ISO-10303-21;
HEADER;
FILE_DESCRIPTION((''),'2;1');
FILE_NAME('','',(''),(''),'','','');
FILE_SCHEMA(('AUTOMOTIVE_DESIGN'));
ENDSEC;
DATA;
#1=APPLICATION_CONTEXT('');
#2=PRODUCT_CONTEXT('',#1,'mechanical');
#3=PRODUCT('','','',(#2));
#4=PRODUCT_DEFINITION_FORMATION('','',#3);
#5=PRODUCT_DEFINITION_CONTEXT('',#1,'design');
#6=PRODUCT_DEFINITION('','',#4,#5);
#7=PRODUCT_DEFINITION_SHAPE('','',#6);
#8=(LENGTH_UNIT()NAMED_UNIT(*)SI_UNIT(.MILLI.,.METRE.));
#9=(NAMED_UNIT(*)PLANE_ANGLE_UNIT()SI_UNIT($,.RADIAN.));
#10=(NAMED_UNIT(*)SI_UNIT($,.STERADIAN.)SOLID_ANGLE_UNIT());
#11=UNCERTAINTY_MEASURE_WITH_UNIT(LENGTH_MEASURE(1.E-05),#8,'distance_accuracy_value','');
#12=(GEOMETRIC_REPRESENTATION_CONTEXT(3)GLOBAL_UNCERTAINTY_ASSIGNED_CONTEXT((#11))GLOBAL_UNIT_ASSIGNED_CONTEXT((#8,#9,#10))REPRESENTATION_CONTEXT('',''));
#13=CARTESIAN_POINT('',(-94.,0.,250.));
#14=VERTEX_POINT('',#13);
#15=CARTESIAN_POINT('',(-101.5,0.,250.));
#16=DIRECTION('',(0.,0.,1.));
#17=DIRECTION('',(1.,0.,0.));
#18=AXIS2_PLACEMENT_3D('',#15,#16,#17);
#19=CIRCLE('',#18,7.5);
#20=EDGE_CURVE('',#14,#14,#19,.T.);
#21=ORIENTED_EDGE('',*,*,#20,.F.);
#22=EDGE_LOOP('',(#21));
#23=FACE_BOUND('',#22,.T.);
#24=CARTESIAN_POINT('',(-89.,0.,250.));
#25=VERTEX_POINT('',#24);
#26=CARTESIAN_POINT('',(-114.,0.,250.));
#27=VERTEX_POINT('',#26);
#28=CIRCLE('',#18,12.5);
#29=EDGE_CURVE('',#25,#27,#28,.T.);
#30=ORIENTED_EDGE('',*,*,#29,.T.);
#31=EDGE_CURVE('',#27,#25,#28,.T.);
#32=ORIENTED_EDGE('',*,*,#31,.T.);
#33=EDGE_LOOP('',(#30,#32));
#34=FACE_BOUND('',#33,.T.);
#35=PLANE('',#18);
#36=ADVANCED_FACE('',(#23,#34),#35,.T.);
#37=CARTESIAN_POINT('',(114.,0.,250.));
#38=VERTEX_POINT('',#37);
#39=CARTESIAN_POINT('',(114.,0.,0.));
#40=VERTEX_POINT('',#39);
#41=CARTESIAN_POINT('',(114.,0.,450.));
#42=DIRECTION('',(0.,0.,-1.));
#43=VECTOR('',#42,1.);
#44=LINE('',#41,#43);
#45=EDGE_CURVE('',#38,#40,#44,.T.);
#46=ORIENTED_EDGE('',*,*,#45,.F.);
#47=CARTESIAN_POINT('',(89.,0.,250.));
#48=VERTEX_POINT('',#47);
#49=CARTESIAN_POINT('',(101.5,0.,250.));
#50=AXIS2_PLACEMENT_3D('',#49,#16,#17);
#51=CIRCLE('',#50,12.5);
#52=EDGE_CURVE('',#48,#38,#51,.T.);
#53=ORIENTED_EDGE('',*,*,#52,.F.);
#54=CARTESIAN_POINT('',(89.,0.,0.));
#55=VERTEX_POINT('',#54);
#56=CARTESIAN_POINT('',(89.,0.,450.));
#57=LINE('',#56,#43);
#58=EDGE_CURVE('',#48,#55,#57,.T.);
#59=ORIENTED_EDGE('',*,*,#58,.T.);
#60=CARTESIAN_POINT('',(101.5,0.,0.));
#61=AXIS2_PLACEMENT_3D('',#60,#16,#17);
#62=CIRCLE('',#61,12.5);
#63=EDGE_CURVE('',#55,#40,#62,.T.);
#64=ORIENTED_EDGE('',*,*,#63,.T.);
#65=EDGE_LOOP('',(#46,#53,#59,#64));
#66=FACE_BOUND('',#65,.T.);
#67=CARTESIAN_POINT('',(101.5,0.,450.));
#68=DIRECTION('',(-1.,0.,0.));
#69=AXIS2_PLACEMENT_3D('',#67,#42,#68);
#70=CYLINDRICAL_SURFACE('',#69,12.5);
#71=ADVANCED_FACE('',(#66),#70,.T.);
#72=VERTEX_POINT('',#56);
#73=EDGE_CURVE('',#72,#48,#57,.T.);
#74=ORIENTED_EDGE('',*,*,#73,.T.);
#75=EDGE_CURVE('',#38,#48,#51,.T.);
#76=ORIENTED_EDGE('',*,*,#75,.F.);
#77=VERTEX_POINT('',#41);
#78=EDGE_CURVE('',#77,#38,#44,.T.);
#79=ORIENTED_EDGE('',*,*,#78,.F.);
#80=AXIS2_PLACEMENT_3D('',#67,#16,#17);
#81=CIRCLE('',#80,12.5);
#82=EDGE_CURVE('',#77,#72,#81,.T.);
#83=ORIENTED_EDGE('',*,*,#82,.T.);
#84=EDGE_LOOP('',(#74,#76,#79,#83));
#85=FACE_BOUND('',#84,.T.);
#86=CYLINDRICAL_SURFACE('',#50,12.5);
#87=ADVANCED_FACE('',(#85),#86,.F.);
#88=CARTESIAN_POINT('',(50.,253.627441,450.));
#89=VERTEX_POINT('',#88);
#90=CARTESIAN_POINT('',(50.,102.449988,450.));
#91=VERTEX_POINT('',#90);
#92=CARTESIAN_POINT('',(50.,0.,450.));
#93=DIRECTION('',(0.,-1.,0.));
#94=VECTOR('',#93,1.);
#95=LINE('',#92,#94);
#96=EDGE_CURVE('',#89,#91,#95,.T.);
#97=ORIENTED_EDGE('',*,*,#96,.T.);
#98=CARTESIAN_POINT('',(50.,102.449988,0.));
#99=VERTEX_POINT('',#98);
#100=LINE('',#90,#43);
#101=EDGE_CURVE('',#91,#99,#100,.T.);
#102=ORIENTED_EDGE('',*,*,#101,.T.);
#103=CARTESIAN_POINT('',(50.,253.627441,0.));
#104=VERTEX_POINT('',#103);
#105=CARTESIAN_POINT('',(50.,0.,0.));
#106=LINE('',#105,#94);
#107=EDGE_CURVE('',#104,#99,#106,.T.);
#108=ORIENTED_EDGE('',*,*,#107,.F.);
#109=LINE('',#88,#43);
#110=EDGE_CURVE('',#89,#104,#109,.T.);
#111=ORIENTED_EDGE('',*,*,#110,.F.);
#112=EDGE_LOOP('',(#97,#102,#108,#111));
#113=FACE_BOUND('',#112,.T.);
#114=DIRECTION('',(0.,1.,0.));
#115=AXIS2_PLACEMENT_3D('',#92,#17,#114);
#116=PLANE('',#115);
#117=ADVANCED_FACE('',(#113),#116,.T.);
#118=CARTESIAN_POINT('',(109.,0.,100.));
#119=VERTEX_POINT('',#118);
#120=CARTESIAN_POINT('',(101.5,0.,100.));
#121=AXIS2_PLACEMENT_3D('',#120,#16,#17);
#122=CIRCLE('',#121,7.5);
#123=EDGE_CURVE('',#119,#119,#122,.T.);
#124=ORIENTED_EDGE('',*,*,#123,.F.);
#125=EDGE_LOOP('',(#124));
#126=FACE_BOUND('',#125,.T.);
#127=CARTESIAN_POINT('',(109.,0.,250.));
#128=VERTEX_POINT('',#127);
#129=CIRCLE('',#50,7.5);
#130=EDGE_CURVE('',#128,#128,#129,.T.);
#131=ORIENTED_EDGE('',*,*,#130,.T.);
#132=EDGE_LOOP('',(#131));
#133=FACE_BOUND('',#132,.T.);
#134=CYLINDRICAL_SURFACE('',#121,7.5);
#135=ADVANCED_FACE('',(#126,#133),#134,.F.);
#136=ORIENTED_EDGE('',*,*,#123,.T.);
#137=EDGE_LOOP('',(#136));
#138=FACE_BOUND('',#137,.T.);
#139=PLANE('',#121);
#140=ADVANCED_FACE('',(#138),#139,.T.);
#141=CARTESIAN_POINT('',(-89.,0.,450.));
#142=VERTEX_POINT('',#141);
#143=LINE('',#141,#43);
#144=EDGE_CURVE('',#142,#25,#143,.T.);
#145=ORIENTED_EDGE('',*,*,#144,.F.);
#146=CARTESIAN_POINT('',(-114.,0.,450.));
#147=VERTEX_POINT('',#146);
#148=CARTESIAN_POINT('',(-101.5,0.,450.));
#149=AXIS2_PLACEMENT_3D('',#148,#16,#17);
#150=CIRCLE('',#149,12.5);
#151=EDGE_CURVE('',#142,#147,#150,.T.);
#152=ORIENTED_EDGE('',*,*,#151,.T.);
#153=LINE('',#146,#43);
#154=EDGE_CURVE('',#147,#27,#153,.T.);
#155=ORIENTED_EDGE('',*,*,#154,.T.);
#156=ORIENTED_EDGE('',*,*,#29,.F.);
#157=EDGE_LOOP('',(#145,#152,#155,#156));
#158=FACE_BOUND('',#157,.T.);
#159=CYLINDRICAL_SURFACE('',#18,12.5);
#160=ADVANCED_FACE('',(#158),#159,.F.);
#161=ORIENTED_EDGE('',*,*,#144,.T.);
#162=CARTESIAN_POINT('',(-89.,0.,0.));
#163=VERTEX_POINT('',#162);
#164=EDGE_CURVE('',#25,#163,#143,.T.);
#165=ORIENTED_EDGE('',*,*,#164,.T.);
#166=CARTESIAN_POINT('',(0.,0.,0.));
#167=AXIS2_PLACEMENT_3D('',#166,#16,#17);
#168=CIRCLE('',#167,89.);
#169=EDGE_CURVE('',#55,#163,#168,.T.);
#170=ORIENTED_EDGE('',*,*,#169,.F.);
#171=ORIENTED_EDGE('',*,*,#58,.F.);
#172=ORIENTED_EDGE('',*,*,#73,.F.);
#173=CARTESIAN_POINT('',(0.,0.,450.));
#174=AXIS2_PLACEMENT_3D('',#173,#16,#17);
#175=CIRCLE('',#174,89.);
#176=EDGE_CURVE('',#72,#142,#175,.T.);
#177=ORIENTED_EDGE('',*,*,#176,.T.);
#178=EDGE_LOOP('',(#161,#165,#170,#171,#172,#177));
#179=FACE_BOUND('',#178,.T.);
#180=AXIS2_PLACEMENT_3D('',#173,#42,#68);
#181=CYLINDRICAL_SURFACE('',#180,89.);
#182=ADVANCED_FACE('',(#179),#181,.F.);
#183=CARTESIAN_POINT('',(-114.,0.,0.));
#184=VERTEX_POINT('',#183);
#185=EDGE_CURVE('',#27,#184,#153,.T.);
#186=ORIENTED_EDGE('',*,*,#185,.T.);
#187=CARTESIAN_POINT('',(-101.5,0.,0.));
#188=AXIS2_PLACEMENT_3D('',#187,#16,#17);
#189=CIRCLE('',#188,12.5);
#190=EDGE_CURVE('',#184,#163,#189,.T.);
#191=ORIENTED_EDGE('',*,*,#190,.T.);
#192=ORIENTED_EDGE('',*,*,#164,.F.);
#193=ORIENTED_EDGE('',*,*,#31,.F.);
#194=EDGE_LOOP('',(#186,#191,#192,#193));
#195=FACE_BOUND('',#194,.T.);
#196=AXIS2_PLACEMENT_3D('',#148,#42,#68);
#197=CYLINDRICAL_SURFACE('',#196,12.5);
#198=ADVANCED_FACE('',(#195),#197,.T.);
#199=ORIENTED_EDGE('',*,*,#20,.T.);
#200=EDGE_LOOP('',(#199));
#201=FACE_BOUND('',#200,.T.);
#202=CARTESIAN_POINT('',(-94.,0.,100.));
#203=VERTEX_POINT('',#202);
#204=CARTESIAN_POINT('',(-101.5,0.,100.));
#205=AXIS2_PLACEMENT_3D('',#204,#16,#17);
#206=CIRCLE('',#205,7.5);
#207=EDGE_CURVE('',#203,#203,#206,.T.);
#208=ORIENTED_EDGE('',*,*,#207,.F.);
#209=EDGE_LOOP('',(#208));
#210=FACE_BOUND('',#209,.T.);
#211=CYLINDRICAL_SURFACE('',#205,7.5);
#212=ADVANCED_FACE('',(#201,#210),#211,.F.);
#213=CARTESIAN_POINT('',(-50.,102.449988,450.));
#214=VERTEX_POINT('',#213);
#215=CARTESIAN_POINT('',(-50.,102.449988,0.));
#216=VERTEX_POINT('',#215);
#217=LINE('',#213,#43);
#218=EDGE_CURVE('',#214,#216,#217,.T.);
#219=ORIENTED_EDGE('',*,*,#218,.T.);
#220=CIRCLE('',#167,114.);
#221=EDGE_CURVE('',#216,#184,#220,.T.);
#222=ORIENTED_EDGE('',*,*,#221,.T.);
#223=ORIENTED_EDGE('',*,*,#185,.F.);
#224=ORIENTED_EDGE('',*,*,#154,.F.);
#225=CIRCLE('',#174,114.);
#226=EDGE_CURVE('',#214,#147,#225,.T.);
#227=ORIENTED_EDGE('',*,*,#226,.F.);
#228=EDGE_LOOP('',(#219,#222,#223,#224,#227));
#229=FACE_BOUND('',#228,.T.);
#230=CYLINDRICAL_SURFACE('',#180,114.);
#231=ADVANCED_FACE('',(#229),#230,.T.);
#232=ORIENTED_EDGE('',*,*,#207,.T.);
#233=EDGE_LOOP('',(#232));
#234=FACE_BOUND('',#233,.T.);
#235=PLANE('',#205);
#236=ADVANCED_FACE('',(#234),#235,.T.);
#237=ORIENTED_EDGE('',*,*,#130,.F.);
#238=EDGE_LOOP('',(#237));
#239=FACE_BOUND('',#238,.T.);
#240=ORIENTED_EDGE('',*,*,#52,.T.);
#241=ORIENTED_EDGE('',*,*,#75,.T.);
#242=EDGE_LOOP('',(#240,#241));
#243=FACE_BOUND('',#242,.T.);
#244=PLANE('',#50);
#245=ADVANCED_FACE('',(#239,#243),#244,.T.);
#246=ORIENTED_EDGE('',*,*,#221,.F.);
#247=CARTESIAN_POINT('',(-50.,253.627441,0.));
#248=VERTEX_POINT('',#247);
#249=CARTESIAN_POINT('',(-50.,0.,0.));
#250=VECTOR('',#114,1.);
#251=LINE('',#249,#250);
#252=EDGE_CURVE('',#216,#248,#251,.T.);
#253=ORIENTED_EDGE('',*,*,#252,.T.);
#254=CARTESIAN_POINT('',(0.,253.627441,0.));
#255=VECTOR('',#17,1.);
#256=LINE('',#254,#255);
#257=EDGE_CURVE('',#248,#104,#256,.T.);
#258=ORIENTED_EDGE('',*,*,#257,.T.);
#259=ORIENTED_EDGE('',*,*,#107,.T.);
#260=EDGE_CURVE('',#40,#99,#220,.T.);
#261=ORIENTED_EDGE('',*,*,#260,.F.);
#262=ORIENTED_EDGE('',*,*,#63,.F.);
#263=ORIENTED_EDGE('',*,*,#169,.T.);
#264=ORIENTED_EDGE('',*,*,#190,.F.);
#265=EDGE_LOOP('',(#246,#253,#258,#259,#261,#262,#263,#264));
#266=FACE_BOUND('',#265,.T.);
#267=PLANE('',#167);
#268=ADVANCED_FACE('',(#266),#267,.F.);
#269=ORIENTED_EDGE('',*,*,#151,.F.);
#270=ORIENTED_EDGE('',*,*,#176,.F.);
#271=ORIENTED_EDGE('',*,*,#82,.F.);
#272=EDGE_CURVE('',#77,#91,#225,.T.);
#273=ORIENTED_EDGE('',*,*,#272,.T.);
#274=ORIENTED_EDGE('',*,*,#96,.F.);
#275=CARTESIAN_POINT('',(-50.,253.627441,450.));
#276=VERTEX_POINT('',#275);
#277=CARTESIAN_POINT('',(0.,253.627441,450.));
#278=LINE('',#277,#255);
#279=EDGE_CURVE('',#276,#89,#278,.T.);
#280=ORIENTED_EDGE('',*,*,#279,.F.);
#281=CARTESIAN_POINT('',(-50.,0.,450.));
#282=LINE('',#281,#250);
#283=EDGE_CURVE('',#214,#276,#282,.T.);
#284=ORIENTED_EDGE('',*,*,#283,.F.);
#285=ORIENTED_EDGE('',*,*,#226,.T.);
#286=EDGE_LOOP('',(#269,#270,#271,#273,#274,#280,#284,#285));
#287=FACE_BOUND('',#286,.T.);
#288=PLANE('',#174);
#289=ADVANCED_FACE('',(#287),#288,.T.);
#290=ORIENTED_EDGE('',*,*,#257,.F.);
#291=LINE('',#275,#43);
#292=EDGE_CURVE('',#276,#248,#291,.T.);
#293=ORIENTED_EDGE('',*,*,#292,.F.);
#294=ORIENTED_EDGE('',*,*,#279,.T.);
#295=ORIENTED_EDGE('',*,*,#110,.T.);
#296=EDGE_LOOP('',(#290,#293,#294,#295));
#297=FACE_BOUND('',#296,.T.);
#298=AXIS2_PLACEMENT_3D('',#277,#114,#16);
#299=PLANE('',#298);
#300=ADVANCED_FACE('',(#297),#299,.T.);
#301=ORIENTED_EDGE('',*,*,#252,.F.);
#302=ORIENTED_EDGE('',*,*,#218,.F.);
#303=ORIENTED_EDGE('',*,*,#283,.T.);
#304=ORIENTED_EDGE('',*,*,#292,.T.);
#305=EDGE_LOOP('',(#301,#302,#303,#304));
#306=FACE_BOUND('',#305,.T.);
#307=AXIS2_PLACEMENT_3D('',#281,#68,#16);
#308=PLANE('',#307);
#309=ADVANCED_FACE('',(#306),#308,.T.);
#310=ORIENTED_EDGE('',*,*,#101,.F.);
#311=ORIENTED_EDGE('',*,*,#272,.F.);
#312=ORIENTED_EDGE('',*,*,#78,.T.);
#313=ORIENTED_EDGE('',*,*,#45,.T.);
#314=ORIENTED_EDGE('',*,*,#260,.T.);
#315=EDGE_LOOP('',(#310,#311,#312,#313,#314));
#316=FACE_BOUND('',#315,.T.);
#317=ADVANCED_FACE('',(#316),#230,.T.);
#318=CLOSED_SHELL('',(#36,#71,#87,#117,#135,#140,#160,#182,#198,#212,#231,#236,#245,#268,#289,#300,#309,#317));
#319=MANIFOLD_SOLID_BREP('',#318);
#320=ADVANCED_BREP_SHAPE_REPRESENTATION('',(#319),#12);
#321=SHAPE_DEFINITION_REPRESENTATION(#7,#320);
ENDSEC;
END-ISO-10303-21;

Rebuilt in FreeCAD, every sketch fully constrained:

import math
import FreeCAD as App
import Part
import Sketcher
Q = App.Units.Quantity

doc = App.newDocument("Part")
body = doc.addObject("PartDesign::Body", "Body")

# Sketch on XY plane
sketch1 = body.newObject("Sketcher::SketchObject", "Sketch")
sketch1.AttachmentSupport = (doc.getObject("XY_Plane"), [""])
sketch1.MapMode = "FlatFace"
sketch1.addGeometry([
    Part.LineSegment(App.Vector(-50, 253.627441, 0), App.Vector(-50, 102.449988, 0)),  # 0
    Part.ArcOfCircle(Part.Circle(App.Vector(0, 0, 0), App.Vector(0, 0, 1), 114), math.radians(116.014366), math.radians(180)),  # 1
    Part.ArcOfCircle(Part.Circle(App.Vector(-101.5, 0, 0), App.Vector(0, 0, 1), 12.5), math.radians(180), math.radians(360)),  # 2
    Part.ArcOfCircle(Part.Circle(App.Vector(0, 0, 0), App.Vector(0, 0, 1), 89), math.radians(55.819784), math.radians(180)),  # 3
    Part.ArcOfCircle(Part.Circle(App.Vector(0, 0, 0), App.Vector(0, 0, 1), 89), math.radians(0), math.radians(55.819784)),  # 4
    Part.ArcOfCircle(Part.Circle(App.Vector(101.5, 0, 0), App.Vector(0, 0, 1), 12.5), math.radians(180), math.radians(360)),  # 5
    Part.ArcOfCircle(Part.Circle(App.Vector(0, 0, 0), App.Vector(0, 0, 1), 114), math.radians(0), math.radians(63.985634)),  # 6
    Part.LineSegment(App.Vector(50, 102.449988, 0), App.Vector(50, 253.627441, 0)),  # 7
    Part.LineSegment(App.Vector(50, 253.627441, 0), App.Vector(-50, 253.627441, 0)),  # 8
], False)
sketch1.addConstraint([
    Sketcher.Constraint("Coincident", 0, 2, 1, 1),
    Sketcher.Constraint("Tangent", 1, 2, 2, 1),
    Sketcher.Constraint("Tangent", 2, 2, 3, 2),
    Sketcher.Constraint("Tangent", 3, 1, 4, 2),
    Sketcher.Constraint("Tangent", 4, 1, 5, 1),
    Sketcher.Constraint("Tangent", 5, 2, 6, 1),
    Sketcher.Constraint("Coincident", 6, 2, 7, 1),
    Sketcher.Constraint("Coincident", 7, 2, 8, 1),
    Sketcher.Constraint("Coincident", 8, 2, 0, 1),
    Sketcher.Constraint("Vertical", 0),
    Sketcher.Constraint("Vertical", 7),
    Sketcher.Constraint("Horizontal", 8),
    Sketcher.Constraint("Coincident", 1, 3, -1, 1),
    Sketcher.Constraint("Coincident", 3, 3, -1, 1),
    Sketcher.Constraint("Coincident", 6, 3, -1, 1),
    Sketcher.Constraint("Equal", 3, 4),
    Sketcher.Constraint("Equal", 2, 5),
    Sketcher.Constraint("PointOnObject", 2, 3, -1),
    Sketcher.Constraint("PointOnObject", 5, 3, -1),
    Sketcher.Constraint("Horizontal", 0, 2, 6, 2),
    Sketcher.Constraint("Vertical", 3, 1, 6, 2),
    Sketcher.Constraint("Radius", 1, Q("114 mm")),
    Sketcher.Constraint("Radius", 3, Q("89 mm")),
    Sketcher.Constraint("DistanceX", 8, 2, 8, 1, Q("100 mm")),
    Sketcher.Constraint("DistanceY", 3, 1, 7, 2, Q("180 mm")),
])
pad1 = body.newObject("PartDesign::Pad", "Pad")
pad1.Profile = sketch1
pad1.Length = 450

# Sketch on XY plane
sketch2 = body.newObject("Sketcher::SketchObject", "Sketch001")
sketch2.AttachmentSupport = (doc.getObject("XY_Plane"), [""])
sketch2.MapMode = "FlatFace"
sketch2.AttachmentOffset = App.Placement(App.Vector(0, 0, 450), App.Rotation())
sketch2.addGeometry([
    Part.Circle(App.Vector(101.5, 0, 0), App.Vector(0, 0, 1), 7.5),
    Part.Circle(App.Vector(-101.5, 0, 0), App.Vector(0, 0, 1), 7.5),
], False)
sketch2.addConstraint([
    Sketcher.Constraint("Equal", 0, 1),
    Sketcher.Constraint("Symmetric", 0, 3, 1, 3, -1, 1),
    Sketcher.Constraint("PointOnObject", 0, 3, -1),
    Sketcher.Constraint("Diameter", 0, Q("15 mm")),
    Sketcher.Constraint("DistanceX", 1, 3, 0, 3, Q("203 mm")),
])
pocket1 = body.newObject("PartDesign::Pocket", "Pocket")
pocket1.Profile = sketch2
pocket1.Length = 350

# Sketch on XY plane
sketch3 = body.newObject("Sketcher::SketchObject", "Sketch002")
sketch3.AttachmentSupport = (doc.getObject("XY_Plane"), [""])
sketch3.MapMode = "FlatFace"
sketch3.AttachmentOffset = App.Placement(App.Vector(0, 0, 450), App.Rotation())
sketch3.addGeometry([
    Part.Circle(App.Vector(-101.5, 0, 0), App.Vector(0, 0, 1), 12.5),
    Part.Circle(App.Vector(-101.5, 0, 0), App.Vector(0, 0, 1), 7.5),
    Part.Circle(App.Vector(101.5, 0, 0), App.Vector(0, 0, 1), 12.5),
    Part.Circle(App.Vector(101.5, 0, 0), App.Vector(0, 0, 1), 7.5),
], False)
sketch3.addConstraint([
    Sketcher.Constraint("Coincident", 1, 3, 0, 3),
    Sketcher.Constraint("Coincident", 3, 3, 2, 3),
    Sketcher.Constraint("Equal", 0, 2),
    Sketcher.Constraint("Equal", 1, 3),
    Sketcher.Constraint("Symmetric", 0, 3, 2, 3, -1, 1),
    Sketcher.Constraint("PointOnObject", 0, 3, -1),
    Sketcher.Constraint("Diameter", 0, Q("25 mm")),
    Sketcher.Constraint("Diameter", 1, Q("15 mm")),
    Sketcher.Constraint("DistanceX", 0, 3, 2, 3, Q("203 mm")),
])
pocket2 = body.newObject("PartDesign::Pocket", "Pocket001")
pocket2.Profile = sketch3
pocket2.Length = 200

doc.recompute()
